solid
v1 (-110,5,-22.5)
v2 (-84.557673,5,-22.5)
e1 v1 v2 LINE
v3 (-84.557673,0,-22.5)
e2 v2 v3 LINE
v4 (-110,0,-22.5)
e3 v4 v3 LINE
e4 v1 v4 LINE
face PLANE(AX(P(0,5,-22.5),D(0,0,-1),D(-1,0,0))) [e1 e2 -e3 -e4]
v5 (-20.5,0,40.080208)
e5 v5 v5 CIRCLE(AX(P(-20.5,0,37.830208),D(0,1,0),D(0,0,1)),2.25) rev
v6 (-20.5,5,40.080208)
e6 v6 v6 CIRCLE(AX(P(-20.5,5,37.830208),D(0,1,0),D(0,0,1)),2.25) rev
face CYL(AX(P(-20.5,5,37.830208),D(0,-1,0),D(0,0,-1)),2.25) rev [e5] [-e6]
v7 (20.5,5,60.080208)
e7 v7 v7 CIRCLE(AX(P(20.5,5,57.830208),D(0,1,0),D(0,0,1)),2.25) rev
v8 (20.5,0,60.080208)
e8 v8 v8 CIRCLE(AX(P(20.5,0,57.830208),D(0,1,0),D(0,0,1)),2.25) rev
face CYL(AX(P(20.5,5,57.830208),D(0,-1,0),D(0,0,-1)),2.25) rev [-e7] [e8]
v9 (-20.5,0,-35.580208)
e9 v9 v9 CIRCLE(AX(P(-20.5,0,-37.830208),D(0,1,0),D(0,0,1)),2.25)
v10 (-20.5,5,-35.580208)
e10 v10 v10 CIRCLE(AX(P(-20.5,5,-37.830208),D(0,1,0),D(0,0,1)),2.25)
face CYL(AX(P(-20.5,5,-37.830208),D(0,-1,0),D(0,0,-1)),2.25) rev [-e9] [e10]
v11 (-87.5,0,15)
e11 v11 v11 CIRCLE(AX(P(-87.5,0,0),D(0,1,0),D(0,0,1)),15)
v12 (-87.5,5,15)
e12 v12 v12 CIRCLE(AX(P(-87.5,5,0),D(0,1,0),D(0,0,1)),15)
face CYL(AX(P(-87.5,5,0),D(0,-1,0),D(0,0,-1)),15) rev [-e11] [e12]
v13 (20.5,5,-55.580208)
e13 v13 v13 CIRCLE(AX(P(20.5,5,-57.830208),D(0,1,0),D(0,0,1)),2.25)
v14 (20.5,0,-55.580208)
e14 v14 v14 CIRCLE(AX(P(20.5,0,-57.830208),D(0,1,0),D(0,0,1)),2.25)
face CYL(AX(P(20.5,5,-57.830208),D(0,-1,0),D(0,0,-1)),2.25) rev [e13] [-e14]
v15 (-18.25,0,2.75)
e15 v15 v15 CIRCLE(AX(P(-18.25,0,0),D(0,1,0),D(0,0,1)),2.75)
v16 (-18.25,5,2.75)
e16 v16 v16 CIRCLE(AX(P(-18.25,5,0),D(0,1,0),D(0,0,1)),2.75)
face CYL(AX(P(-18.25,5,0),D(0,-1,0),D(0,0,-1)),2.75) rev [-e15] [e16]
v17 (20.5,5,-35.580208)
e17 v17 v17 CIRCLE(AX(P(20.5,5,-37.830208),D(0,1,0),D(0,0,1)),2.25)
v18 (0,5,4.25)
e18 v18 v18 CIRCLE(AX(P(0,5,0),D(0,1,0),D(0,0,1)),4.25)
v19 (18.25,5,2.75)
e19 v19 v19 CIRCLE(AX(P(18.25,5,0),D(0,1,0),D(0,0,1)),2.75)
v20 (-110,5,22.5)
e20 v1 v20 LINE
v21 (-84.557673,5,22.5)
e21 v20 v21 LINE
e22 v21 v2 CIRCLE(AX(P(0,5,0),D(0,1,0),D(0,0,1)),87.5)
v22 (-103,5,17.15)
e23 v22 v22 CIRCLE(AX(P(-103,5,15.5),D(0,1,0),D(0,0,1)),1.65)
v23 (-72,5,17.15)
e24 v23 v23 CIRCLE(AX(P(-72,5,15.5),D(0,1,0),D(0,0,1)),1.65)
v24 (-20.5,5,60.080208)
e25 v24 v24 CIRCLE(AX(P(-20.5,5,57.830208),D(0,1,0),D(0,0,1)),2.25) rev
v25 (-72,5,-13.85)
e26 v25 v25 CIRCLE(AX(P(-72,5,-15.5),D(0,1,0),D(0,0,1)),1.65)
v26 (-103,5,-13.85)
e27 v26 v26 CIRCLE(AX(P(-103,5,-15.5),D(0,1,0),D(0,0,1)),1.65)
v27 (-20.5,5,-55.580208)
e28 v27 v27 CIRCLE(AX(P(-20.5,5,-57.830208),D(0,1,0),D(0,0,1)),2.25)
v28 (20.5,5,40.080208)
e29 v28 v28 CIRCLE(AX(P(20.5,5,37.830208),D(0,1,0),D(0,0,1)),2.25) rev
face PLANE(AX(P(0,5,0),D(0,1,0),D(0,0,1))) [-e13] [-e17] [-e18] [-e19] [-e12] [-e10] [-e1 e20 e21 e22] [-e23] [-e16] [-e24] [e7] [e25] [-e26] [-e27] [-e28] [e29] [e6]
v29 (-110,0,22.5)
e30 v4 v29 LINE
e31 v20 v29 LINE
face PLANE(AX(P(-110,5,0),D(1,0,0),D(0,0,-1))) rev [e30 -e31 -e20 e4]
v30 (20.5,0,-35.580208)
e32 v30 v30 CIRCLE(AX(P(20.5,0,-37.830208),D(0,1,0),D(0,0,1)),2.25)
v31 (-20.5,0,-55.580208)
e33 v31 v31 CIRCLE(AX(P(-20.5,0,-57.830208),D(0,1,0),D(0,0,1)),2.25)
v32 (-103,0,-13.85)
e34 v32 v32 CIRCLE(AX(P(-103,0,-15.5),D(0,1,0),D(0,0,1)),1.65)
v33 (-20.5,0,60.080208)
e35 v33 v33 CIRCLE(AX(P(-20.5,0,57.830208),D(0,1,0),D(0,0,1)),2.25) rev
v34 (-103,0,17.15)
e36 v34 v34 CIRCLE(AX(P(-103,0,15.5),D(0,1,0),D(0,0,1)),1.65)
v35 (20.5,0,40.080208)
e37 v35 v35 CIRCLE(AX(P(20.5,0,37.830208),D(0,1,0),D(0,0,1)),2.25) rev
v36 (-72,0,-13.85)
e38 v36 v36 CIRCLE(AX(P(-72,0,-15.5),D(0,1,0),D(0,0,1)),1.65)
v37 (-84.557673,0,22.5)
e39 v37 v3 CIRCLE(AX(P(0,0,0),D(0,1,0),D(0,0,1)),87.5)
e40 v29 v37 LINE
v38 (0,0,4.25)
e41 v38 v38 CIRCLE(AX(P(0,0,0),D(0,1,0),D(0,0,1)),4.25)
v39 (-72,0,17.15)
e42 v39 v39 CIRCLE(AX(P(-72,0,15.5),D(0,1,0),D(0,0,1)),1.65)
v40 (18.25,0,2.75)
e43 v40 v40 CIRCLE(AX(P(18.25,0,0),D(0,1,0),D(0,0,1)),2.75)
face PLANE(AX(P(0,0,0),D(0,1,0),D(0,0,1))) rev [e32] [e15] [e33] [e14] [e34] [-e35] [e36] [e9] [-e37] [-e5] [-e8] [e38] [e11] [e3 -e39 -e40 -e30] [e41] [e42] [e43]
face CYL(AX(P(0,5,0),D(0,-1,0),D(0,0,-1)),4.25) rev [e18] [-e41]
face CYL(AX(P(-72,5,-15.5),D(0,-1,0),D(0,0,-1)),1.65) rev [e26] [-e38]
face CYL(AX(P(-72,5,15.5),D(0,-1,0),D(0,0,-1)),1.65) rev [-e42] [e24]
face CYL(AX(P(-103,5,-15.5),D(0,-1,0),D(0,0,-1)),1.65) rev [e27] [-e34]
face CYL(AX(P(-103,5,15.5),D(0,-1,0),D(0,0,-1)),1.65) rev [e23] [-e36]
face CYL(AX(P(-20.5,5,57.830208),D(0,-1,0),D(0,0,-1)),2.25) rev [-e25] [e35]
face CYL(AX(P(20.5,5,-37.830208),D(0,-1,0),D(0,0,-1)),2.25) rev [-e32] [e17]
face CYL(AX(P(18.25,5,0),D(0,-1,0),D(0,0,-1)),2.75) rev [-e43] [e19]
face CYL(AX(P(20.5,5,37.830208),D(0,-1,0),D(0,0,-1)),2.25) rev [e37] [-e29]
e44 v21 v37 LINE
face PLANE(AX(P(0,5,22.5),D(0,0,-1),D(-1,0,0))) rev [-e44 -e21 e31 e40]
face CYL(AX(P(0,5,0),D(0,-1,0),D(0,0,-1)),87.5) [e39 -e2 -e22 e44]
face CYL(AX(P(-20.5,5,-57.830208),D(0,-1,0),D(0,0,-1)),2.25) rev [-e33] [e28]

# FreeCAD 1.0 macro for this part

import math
import FreeCAD as App
import Part
import Sketcher
from FreeCAD import Vector

doc = App.newDocument("Part")
params = doc.addObject("Spreadsheet::Sheet", "Params")
for row, (alias, value) in enumerate([
    ("sketch1_diameter", "30 mm"),
    ("sketch1_diameter2", "3.3 mm"),
    ("sketch1_diameter3", "4.5 mm"),
    ("sketch1_diameter4", "5.5 mm"),
    ("sketch1_diameter5", "8.5 mm"),
    ("pad1_length", "5 mm"),
], start=1):
    params.set(f"A{row}", alias)
    params.set(f"B{row}", "=" + value)
    params.setAlias(f"B{row}", alias)

body = doc.addObject("PartDesign::Body", "Body")

# Sketch on XZ plane
sketch1 = doc.addObject("Sketcher::SketchObject", "Sketch")
body.addObject(sketch1)
sketch1.AttachmentSupport = (doc.XZ_Plane, [""])
sketch1.MapMode = "FlatFace"
sketch1.addGeometry([
    Part.LineSegment(Vector(-84.557673, -22.5, 0), Vector(-110, -22.5, 0)),  # 0
    Part.LineSegment(Vector(-110, -22.5, 0), Vector(-110, 22.5, 0)),  # 1
    Part.LineSegment(Vector(-110, 22.5, 0), Vector(-84.557673, 22.5, 0)),  # 2
    Part.ArcOfCircle(Part.Circle(Vector(0, 0, 0), Vector(0, 0, 1), 87.5), math.radians(-165.099403), math.radians(165.099403)),  # 3
    Part.Circle(Vector(-103, 15.5, 0), Vector(0, 0, 1), 1.65),  # 4
    Part.Circle(Vector(-72, 15.5, 0), Vector(0, 0, 1), 1.65),  # 5
    Part.Circle(Vector(-20.5, 57.830208, 0), Vector(0, 0, 1), 2.25),  # 6
    Part.Circle(Vector(-20.5, 37.830208, 0), Vector(0, 0, 1), 2.25),  # 7
    Part.Circle(Vector(20.5, 57.830208, 0), Vector(0, 0, 1), 2.25),  # 8
    Part.Circle(Vector(20.5, 37.830208, 0), Vector(0, 0, 1), 2.25),  # 9
    Part.Circle(Vector(-87.5, 0, 0), Vector(0, 0, 1), 15),  # 10
    Part.Circle(Vector(-103, -15.5, 0), Vector(0, 0, 1), 1.65),  # 11
    Part.Circle(Vector(-72, -15.5, 0), Vector(0, 0, 1), 1.65),  # 12
    Part.Circle(Vector(-18.25, 0, 0), Vector(0, 0, 1), 2.75),  # 13
    Part.Circle(Vector(0, 0, 0), Vector(0, 0, 1), 4.25),  # 14
    Part.Circle(Vector(18.25, 0, 0), Vector(0, 0, 1), 2.75),  # 15
    Part.Circle(Vector(-20.5, -37.830208, 0), Vector(0, 0, 1), 2.25),  # 16
    Part.Circle(Vector(-20.5, -57.830208, 0), Vector(0, 0, 1), 2.25),  # 17
    Part.Circle(Vector(20.5, -37.830208, 0), Vector(0, 0, 1), 2.25),  # 18
    Part.Circle(Vector(20.5, -57.830208, 0), Vector(0, 0, 1), 2.25),  # 19
], False)
sketch1.addConstraint([
    Sketcher.Constraint("Coincident", 0, 2, 1, 1),
    Sketcher.Constraint("Coincident", 1, 2, 2, 1),
    Sketcher.Constraint("Coincident", 2, 2, 3, 2),
    Sketcher.Constraint("Coincident", 3, 1, 0, 1),
    Sketcher.Constraint("Horizontal", 0),
    Sketcher.Constraint("Vertical", 1),
    Sketcher.Constraint("Horizontal", 2),
    Sketcher.Constraint("Coincident", 3, 3, -1, 1),
    Sketcher.Constraint("Coincident", 14, 3, -1, 1),
    Sketcher.Constraint("Equal", 4, 5),
    Sketcher.Constraint("Equal", 6, 7),
    Sketcher.Constraint("Equal", 7, 8),
    Sketcher.Constraint("Equal", 8, 9),
    Sketcher.Constraint("Equal", 5, 11),
    Sketcher.Constraint("Equal", 11, 12),
    Sketcher.Constraint("Equal", 13, 15),
    Sketcher.Constraint("Equal", 9, 16),
    Sketcher.Constraint("Equal", 16, 17),
    Sketcher.Constraint("Equal", 17, 18),
    Sketcher.Constraint("Equal", 18, 19),
    Sketcher.Constraint("Symmetric", 13, 3, 15, 3, -1, 1),
    Sketcher.Constraint("Symmetric", 9, 3, 16, 3, -1, 1),
    Sketcher.Constraint("Symmetric", 8, 3, 17, 3, -1, 1),
    Sketcher.Constraint("Symmetric", 7, 3, 18, 3, -1, 1),
    Sketcher.Constraint("Symmetric", 6, 3, 19, 3, -1, 1),
    Sketcher.Constraint("Symmetric", 6, 3, 8, 3, -2),
    Sketcher.Constraint("Symmetric", 7, 3, 9, 3, -2),
    Sketcher.Constraint("Symmetric", 4, 3, 11, 3, -1),
    Sketcher.Constraint("Symmetric", 5, 3, 12, 3, -1),
    Sketcher.Constraint("PointOnObject", 10, 3, -1),
    Sketcher.Constraint("PointOnObject", 13, 3, -1),
    Sketcher.Constraint("Horizontal", 4, 3, 5, 3),
    Sketcher.Constraint("Vertical", 6, 3, 7, 3),
    Sketcher.Constraint("Vertical", 2, 2, 3, 1),
    Sketcher.Constraint("Diameter", 10, 30.0),
    Sketcher.Constraint("Diameter", 4, 3.3),
    Sketcher.Constraint("Diameter", 6, 4.5),
    Sketcher.Constraint("Diameter", 13, 5.5),
    Sketcher.Constraint("Diameter", 14, 8.5),
    Sketcher.Constraint("Radius", 3, 87.5),
    Sketcher.Constraint("DistanceY", 1, 1, 1, 2, 45.0),
    Sketcher.Constraint("DistanceX", 4, 3, -1, 1, 103.0),
    Sketcher.Constraint("DistanceX", 5, 3, -1, 1, 72.0),
    Sketcher.Constraint("DistanceX", 0, 2, -1, 1, 110.0),
    Sketcher.Constraint("DistanceY", 7, 3, 6, 3, 20.0),
    Sketcher.Constraint("DistanceX", 6, 3, 8, 3, 41.0),
    Sketcher.Constraint("DistanceX", 10, 3, 7, 3, 67.0),
    Sketcher.Constraint("DistanceY", 11, 3, 4, 3, 31.0),
    Sketcher.Constraint("DistanceX", 13, 3, 15, 3, 36.5),
    Sketcher.Constraint("DistanceY", -1, 1, 6, 3, 57.830208),
])
sketch1.setExpression("Constraints[34]", "Params.sketch1_diameter")
sketch1.setExpression("Constraints[35]", "Params.sketch1_diameter2")
sketch1.setExpression("Constraints[36]", "Params.sketch1_diameter3")
sketch1.setExpression("Constraints[37]", "Params.sketch1_diameter4")
sketch1.setExpression("Constraints[38]", "Params.sketch1_diameter5")
pad1 = doc.addObject("PartDesign::Pad", "Pad")
body.addObject(pad1)
pad1.Profile = sketch1
pad1.setExpression("Length", "Params.pad1_length")
pad1.Reversed = True

doc.recompute()
